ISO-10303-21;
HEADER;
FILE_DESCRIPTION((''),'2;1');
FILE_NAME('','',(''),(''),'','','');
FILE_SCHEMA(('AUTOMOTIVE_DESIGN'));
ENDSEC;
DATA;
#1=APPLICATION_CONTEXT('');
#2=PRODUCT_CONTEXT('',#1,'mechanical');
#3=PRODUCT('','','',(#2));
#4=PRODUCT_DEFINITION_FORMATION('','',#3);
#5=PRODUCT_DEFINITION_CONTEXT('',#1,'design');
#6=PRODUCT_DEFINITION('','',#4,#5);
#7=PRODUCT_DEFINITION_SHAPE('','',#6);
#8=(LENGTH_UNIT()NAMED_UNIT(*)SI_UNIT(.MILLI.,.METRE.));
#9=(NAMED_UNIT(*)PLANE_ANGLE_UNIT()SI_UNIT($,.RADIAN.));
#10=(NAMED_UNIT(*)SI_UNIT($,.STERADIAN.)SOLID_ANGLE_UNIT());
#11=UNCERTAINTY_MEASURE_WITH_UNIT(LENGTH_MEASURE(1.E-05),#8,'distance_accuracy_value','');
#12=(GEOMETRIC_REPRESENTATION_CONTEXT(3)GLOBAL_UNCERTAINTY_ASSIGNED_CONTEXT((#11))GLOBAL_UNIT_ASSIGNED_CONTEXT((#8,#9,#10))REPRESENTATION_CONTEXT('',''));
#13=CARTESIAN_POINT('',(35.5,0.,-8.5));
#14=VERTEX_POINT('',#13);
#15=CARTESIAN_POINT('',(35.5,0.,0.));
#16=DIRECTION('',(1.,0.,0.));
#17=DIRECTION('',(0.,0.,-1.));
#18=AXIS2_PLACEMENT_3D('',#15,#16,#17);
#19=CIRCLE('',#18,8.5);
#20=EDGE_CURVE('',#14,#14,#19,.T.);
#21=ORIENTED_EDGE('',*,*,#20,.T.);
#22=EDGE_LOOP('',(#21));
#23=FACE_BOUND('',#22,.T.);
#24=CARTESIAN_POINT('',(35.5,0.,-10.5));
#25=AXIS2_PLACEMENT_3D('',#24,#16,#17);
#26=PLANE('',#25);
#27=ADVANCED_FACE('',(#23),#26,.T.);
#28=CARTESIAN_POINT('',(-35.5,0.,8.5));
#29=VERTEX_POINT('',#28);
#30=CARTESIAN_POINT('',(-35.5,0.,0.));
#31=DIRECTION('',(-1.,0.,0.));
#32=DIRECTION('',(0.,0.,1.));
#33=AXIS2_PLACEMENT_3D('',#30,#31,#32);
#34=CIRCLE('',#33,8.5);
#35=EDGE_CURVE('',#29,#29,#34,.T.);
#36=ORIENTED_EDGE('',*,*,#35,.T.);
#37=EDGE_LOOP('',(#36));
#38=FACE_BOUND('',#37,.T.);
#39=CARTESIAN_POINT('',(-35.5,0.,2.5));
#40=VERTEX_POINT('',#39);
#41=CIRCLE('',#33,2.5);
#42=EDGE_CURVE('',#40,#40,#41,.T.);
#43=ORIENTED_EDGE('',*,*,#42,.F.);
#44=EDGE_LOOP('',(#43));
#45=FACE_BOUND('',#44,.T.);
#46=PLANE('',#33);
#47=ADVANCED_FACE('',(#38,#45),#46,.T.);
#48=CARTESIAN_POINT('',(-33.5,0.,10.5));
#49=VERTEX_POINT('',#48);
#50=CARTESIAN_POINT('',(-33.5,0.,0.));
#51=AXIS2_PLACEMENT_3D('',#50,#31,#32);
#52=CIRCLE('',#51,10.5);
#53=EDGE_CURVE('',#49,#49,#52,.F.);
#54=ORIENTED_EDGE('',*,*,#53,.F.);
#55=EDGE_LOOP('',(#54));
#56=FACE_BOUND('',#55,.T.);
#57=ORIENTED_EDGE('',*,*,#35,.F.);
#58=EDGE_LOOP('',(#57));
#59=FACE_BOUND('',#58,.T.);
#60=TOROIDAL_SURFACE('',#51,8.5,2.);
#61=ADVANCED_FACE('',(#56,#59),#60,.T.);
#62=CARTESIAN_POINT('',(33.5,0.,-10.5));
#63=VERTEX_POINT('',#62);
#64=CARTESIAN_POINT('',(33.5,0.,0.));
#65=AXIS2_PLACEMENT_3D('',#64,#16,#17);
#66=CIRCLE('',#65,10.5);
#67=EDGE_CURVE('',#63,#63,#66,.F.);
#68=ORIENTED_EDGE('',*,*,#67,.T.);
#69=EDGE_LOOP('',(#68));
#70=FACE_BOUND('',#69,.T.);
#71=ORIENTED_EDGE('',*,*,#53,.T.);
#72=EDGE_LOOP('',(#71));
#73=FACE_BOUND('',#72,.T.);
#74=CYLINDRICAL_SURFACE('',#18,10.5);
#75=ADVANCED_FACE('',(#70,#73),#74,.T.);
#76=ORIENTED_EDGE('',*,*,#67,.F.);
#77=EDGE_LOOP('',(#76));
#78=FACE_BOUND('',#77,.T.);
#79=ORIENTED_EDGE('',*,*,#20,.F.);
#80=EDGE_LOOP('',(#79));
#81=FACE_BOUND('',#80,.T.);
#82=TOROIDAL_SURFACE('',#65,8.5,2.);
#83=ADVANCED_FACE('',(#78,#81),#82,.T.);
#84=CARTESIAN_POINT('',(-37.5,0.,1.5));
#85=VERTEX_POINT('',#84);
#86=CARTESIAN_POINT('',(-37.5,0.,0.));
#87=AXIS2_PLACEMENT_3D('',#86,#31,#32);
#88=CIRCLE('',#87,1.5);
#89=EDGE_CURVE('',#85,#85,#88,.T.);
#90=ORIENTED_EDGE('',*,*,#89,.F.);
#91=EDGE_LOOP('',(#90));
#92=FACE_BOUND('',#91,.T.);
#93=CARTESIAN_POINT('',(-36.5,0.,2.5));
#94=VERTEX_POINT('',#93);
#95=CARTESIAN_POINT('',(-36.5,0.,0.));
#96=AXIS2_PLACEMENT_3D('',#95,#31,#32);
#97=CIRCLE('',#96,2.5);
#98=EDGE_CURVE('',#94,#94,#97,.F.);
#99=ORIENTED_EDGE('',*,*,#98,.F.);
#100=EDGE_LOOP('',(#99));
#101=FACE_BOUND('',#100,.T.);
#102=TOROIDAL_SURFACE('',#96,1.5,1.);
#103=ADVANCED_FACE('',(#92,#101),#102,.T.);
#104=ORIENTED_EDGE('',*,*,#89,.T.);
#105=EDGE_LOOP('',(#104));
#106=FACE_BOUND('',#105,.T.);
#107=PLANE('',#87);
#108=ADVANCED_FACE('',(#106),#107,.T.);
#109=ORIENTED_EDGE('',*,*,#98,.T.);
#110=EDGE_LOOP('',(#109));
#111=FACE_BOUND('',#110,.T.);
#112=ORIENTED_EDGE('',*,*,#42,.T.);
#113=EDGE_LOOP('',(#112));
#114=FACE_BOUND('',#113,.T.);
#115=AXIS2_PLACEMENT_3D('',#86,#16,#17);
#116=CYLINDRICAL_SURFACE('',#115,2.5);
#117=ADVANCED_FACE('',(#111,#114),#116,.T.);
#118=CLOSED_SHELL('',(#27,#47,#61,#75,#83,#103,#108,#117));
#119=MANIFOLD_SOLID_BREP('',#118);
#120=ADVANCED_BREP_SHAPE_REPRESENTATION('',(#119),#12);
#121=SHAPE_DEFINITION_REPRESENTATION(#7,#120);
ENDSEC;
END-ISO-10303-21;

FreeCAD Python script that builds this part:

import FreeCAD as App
import Part
import Sketcher

V = App.Vector
Q = App.Units.Quantity


def edges_at(feature, points):
    """Names of the edges that pass closest to the given points."""
    edges = feature.Shape.Edges
    near = lambda p: min(range(len(edges)), key=lambda i: edges[i].distToShape(Part.Vertex(*p))[0])
    return sorted({f"Edge{near(p) + 1}" for p in points})


def add_polygon(sketch, points):
    """Adds a closed chain of lines whose ends are joined by coincident constraints."""
    first, n = sketch.GeometryCount, len(points)
    for a, b in zip(points, points[1:] + points[:1]):
        sketch.addGeometry(Part.LineSegment(App.Vector(*a, 0), App.Vector(*b, 0)), False)
    for i in range(n):
        sketch.addConstraint(Sketcher.Constraint("Coincident", first + i, 2, first + (i + 1) % n, 1))

doc = App.newDocument("Part")
body = doc.addObject("PartDesign::Body", "Body")

sketch1 = doc.addObject("Sketcher::SketchObject", "Sketch")
body.addObject(sketch1)
sketch1.AttachmentSupport = (doc.XZ_Plane, [""])
sketch1.MapMode = "FlatFace"
add_polygon(sketch1, [(-36, -10), (-36, 0), (36, 0), (36, -10)])
sketch1.addConstraint([
    Sketcher.Constraint("Vertical", 0),
    Sketcher.Constraint("Horizontal", 1),
    Sketcher.Constraint("Vertical", 2),
    Sketcher.Constraint("Horizontal", 3),
    Sketcher.Constraint("Symmetric", 0, 2, 1, 2, -1, 1),
    Sketcher.Constraint("DistanceX", 1, 1, 1, 2, Q("71 mm")),
    Sketcher.Constraint("DistanceY", 0, 1, 0, 2, Q("10.5 mm")),
])
revolution = doc.addObject("PartDesign::Revolution", "Revolution")
body.addObject(revolution)
revolution.Profile = sketch1
revolution.ReferenceAxis = (sketch1, ["H_Axis"])
revolution.Angle = 360
doc.recompute()

fillet = doc.addObject("PartDesign::Fillet", "Fillet")
body.addObject(fillet)
fillet.Base = (revolution, edges_at(revolution, [(-35.5, 0, 10.5)]))
fillet.Radius = 2
doc.recompute()

fillet2 = doc.addObject("PartDesign::Fillet", "Fillet001")
body.addObject(fillet2)
fillet2.Base = (fillet, edges_at(fillet, [(35.5, 0, 10.5)]))
fillet2.Radius = 2

sketch2 = doc.addObject("Sketcher::SketchObject", "Sketch001")
body.addObject(sketch2)
sketch2.AttachmentSupport = (doc.YZ_Plane, [""])
sketch2.MapMode = "FlatFace"
sketch2.AttachmentOffset = App.Placement(V(0, 0, -35.5), App.Rotation())
sketch2.addGeometry(Part.Circle(V(0, 0, 0), V(0, 0, 1), 2.5), False)
sketch2.addConstraint([
    Sketcher.Constraint("Coincident", 0, 3, -1, 1),
    Sketcher.Constraint("Diameter", 0, Q("5 mm")),
])
pad1 = doc.addObject("PartDesign::Pad", "Pad")
body.addObject(pad1)
pad1.Profile = sketch2
pad1.Length = 2
pad1.Reversed = True
doc.recompute()

fillet3 = doc.addObject("PartDesign::Fillet", "Fillet002")
body.addObject(fillet3)
fillet3.Base = (pad1, edges_at(pad1, [(-37.5, 0, -2.5)]))
fillet3.Radius = 1

doc.recompute()
